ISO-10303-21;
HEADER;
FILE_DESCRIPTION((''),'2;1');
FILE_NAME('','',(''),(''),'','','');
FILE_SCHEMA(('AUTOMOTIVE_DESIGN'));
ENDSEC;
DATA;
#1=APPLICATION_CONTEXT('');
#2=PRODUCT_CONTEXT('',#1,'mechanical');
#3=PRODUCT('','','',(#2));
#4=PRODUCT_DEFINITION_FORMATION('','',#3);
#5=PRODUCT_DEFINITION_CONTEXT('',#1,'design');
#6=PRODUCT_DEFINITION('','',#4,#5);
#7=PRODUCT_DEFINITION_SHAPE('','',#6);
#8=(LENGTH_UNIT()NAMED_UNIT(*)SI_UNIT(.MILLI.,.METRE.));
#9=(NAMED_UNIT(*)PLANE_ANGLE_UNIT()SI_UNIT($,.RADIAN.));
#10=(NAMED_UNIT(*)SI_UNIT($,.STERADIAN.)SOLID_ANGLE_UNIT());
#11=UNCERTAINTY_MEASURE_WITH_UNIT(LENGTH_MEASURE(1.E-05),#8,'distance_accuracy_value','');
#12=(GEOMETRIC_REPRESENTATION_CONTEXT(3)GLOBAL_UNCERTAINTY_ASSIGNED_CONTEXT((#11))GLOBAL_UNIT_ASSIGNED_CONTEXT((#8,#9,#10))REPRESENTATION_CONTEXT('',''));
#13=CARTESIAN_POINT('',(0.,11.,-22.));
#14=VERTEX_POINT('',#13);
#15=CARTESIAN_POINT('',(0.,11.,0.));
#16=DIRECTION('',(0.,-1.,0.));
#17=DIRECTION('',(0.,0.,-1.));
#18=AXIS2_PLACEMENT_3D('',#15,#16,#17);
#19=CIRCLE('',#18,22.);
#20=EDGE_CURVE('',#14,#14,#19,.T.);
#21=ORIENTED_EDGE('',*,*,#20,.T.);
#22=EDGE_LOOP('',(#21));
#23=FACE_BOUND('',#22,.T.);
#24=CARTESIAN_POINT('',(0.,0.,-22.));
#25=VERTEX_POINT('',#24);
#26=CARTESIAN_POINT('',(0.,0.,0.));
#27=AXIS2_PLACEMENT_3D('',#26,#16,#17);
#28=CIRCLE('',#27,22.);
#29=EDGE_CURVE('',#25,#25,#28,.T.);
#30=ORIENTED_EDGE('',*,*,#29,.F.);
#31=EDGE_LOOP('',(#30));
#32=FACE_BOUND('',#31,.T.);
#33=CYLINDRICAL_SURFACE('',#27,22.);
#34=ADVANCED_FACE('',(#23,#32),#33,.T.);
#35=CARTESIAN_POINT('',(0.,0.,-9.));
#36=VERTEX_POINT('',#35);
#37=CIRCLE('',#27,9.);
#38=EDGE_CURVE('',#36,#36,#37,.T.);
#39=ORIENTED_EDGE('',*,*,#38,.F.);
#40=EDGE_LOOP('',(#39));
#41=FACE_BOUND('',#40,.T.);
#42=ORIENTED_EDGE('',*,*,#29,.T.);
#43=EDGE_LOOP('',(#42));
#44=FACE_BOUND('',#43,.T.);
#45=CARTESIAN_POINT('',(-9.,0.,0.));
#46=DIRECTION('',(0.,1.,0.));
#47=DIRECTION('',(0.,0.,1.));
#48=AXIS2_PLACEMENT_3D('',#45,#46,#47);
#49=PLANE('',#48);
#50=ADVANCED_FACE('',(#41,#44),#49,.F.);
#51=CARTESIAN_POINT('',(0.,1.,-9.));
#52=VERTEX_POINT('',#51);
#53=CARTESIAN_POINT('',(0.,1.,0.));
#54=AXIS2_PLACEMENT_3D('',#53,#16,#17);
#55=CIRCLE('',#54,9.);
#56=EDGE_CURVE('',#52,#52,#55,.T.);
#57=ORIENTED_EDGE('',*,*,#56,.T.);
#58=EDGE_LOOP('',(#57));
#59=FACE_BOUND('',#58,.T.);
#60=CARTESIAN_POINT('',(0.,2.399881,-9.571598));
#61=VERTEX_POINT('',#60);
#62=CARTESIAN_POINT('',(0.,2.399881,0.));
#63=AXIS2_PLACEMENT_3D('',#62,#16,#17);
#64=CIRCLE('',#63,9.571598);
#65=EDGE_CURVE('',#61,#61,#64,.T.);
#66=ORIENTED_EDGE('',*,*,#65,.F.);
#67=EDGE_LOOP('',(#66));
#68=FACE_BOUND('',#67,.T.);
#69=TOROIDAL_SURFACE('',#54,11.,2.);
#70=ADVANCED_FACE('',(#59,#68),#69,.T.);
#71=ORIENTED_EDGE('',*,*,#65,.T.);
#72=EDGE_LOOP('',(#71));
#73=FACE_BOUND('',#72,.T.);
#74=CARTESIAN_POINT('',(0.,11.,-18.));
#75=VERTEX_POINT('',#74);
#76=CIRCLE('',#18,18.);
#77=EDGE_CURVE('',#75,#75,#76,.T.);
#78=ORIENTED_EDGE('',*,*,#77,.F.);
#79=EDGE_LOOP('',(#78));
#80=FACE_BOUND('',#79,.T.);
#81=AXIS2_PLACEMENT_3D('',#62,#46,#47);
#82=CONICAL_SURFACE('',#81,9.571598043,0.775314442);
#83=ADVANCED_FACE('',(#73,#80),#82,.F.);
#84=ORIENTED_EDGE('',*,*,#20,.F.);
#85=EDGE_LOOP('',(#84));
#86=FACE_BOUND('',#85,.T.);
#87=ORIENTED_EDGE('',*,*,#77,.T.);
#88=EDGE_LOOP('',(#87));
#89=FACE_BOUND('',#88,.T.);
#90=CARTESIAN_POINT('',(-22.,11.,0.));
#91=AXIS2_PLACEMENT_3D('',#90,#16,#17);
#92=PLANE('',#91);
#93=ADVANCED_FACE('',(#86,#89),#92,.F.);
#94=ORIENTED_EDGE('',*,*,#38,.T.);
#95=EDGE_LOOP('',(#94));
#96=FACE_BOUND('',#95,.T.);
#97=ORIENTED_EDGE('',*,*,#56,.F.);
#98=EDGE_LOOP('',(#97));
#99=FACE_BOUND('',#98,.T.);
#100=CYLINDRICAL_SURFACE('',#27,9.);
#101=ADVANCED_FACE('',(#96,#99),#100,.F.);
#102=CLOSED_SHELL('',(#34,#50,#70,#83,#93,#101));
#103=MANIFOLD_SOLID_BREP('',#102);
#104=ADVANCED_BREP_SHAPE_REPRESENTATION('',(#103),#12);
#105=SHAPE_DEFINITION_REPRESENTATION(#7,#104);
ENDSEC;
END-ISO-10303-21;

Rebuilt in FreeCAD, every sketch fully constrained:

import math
import FreeCAD as App
import Part
import Sketcher

V = App.Vector
Q = App.Units.Quantity

doc = App.newDocument("Part")
body = doc.addObject("PartDesign::Body", "Body")

sketch1 = doc.addObject("Sketcher::SketchObject", "Sketch")
body.addObject(sketch1)
sketch1.AttachmentSupport = (doc.XY_Plane, [""])
sketch1.MapMode = "FlatFace"
sketch1.addGeometry(Part.LineSegment(V(-22, 0, 0), V(-9, 0, 0)), False)
sketch1.addGeometry(Part.LineSegment(V(-9, 0, 0), V(-9, 1, 0)), False)
sketch1.addGeometry(Part.ArcOfCircle(Part.Circle(V(-11, 1, 0), V(0, 0, 1), 2), math.radians(0), math.radians(44)), False)
sketch1.addGeometry(Part.LineSegment(V(-9.6, 2.4, 0), V(-18, 11, 0)), False)
sketch1.addGeometry(Part.LineSegment(V(-18, 11, 0), V(-22, 11, 0)), False)
sketch1.addGeometry(Part.LineSegment(V(-22, 11, 0), V(-22, 0, 0)), False)
sketch1.addConstraint(Sketcher.Constraint("Coincident", 0, 2, 1, 1))
sketch1.addConstraint(Sketcher.Constraint("Tangent", 1, 2, 2, 1))
sketch1.addConstraint(Sketcher.Constraint("Tangent", 2, 2, 3, 1))
sketch1.addConstraint(Sketcher.Constraint("Coincident", 3, 2, 4, 1))
sketch1.addConstraint(Sketcher.Constraint("Coincident", 4, 2, 5, 1))
sketch1.addConstraint(Sketcher.Constraint("Coincident", 5, 2, 0, 1))
sketch1.addConstraint(Sketcher.Constraint("Horizontal", 0))
sketch1.addConstraint(Sketcher.Constraint("Vertical", 1))
sketch1.addConstraint(Sketcher.Constraint("Horizontal", 4))
sketch1.addConstraint(Sketcher.Constraint("Vertical", 5))
sketch1.addConstraint(Sketcher.Constraint("PointOnObject", 0, 2, -1))
sketch1.addConstraint(Sketcher.Constraint("Radius", 2, Q("2 mm")))
sketch1.addConstraint(Sketcher.Constraint("DistanceX", 0, 1, 0, 2, Q("13 mm")))
sketch1.addConstraint(Sketcher.Constraint("DistanceX", 4, 2, 4, 1, Q("4 mm")))
sketch1.addConstraint(Sketcher.Constraint("DistanceY", 1, 1, 1, 2, Q("1 mm")))
sketch1.addConstraint(Sketcher.Constraint("DistanceY", 5, 2, 5, 1, Q("11 mm")))
sketch1.addConstraint(Sketcher.Constraint("DistanceX", 2, 3, -1, 1, Q("11 mm")))
revolution = doc.addObject("PartDesign::Revolution", "Revolution")
body.addObject(revolution)
revolution.Profile = sketch1
revolution.ReferenceAxis = (sketch1, ["V_Axis"])
revolution.Angle = 360

doc.recompute()
